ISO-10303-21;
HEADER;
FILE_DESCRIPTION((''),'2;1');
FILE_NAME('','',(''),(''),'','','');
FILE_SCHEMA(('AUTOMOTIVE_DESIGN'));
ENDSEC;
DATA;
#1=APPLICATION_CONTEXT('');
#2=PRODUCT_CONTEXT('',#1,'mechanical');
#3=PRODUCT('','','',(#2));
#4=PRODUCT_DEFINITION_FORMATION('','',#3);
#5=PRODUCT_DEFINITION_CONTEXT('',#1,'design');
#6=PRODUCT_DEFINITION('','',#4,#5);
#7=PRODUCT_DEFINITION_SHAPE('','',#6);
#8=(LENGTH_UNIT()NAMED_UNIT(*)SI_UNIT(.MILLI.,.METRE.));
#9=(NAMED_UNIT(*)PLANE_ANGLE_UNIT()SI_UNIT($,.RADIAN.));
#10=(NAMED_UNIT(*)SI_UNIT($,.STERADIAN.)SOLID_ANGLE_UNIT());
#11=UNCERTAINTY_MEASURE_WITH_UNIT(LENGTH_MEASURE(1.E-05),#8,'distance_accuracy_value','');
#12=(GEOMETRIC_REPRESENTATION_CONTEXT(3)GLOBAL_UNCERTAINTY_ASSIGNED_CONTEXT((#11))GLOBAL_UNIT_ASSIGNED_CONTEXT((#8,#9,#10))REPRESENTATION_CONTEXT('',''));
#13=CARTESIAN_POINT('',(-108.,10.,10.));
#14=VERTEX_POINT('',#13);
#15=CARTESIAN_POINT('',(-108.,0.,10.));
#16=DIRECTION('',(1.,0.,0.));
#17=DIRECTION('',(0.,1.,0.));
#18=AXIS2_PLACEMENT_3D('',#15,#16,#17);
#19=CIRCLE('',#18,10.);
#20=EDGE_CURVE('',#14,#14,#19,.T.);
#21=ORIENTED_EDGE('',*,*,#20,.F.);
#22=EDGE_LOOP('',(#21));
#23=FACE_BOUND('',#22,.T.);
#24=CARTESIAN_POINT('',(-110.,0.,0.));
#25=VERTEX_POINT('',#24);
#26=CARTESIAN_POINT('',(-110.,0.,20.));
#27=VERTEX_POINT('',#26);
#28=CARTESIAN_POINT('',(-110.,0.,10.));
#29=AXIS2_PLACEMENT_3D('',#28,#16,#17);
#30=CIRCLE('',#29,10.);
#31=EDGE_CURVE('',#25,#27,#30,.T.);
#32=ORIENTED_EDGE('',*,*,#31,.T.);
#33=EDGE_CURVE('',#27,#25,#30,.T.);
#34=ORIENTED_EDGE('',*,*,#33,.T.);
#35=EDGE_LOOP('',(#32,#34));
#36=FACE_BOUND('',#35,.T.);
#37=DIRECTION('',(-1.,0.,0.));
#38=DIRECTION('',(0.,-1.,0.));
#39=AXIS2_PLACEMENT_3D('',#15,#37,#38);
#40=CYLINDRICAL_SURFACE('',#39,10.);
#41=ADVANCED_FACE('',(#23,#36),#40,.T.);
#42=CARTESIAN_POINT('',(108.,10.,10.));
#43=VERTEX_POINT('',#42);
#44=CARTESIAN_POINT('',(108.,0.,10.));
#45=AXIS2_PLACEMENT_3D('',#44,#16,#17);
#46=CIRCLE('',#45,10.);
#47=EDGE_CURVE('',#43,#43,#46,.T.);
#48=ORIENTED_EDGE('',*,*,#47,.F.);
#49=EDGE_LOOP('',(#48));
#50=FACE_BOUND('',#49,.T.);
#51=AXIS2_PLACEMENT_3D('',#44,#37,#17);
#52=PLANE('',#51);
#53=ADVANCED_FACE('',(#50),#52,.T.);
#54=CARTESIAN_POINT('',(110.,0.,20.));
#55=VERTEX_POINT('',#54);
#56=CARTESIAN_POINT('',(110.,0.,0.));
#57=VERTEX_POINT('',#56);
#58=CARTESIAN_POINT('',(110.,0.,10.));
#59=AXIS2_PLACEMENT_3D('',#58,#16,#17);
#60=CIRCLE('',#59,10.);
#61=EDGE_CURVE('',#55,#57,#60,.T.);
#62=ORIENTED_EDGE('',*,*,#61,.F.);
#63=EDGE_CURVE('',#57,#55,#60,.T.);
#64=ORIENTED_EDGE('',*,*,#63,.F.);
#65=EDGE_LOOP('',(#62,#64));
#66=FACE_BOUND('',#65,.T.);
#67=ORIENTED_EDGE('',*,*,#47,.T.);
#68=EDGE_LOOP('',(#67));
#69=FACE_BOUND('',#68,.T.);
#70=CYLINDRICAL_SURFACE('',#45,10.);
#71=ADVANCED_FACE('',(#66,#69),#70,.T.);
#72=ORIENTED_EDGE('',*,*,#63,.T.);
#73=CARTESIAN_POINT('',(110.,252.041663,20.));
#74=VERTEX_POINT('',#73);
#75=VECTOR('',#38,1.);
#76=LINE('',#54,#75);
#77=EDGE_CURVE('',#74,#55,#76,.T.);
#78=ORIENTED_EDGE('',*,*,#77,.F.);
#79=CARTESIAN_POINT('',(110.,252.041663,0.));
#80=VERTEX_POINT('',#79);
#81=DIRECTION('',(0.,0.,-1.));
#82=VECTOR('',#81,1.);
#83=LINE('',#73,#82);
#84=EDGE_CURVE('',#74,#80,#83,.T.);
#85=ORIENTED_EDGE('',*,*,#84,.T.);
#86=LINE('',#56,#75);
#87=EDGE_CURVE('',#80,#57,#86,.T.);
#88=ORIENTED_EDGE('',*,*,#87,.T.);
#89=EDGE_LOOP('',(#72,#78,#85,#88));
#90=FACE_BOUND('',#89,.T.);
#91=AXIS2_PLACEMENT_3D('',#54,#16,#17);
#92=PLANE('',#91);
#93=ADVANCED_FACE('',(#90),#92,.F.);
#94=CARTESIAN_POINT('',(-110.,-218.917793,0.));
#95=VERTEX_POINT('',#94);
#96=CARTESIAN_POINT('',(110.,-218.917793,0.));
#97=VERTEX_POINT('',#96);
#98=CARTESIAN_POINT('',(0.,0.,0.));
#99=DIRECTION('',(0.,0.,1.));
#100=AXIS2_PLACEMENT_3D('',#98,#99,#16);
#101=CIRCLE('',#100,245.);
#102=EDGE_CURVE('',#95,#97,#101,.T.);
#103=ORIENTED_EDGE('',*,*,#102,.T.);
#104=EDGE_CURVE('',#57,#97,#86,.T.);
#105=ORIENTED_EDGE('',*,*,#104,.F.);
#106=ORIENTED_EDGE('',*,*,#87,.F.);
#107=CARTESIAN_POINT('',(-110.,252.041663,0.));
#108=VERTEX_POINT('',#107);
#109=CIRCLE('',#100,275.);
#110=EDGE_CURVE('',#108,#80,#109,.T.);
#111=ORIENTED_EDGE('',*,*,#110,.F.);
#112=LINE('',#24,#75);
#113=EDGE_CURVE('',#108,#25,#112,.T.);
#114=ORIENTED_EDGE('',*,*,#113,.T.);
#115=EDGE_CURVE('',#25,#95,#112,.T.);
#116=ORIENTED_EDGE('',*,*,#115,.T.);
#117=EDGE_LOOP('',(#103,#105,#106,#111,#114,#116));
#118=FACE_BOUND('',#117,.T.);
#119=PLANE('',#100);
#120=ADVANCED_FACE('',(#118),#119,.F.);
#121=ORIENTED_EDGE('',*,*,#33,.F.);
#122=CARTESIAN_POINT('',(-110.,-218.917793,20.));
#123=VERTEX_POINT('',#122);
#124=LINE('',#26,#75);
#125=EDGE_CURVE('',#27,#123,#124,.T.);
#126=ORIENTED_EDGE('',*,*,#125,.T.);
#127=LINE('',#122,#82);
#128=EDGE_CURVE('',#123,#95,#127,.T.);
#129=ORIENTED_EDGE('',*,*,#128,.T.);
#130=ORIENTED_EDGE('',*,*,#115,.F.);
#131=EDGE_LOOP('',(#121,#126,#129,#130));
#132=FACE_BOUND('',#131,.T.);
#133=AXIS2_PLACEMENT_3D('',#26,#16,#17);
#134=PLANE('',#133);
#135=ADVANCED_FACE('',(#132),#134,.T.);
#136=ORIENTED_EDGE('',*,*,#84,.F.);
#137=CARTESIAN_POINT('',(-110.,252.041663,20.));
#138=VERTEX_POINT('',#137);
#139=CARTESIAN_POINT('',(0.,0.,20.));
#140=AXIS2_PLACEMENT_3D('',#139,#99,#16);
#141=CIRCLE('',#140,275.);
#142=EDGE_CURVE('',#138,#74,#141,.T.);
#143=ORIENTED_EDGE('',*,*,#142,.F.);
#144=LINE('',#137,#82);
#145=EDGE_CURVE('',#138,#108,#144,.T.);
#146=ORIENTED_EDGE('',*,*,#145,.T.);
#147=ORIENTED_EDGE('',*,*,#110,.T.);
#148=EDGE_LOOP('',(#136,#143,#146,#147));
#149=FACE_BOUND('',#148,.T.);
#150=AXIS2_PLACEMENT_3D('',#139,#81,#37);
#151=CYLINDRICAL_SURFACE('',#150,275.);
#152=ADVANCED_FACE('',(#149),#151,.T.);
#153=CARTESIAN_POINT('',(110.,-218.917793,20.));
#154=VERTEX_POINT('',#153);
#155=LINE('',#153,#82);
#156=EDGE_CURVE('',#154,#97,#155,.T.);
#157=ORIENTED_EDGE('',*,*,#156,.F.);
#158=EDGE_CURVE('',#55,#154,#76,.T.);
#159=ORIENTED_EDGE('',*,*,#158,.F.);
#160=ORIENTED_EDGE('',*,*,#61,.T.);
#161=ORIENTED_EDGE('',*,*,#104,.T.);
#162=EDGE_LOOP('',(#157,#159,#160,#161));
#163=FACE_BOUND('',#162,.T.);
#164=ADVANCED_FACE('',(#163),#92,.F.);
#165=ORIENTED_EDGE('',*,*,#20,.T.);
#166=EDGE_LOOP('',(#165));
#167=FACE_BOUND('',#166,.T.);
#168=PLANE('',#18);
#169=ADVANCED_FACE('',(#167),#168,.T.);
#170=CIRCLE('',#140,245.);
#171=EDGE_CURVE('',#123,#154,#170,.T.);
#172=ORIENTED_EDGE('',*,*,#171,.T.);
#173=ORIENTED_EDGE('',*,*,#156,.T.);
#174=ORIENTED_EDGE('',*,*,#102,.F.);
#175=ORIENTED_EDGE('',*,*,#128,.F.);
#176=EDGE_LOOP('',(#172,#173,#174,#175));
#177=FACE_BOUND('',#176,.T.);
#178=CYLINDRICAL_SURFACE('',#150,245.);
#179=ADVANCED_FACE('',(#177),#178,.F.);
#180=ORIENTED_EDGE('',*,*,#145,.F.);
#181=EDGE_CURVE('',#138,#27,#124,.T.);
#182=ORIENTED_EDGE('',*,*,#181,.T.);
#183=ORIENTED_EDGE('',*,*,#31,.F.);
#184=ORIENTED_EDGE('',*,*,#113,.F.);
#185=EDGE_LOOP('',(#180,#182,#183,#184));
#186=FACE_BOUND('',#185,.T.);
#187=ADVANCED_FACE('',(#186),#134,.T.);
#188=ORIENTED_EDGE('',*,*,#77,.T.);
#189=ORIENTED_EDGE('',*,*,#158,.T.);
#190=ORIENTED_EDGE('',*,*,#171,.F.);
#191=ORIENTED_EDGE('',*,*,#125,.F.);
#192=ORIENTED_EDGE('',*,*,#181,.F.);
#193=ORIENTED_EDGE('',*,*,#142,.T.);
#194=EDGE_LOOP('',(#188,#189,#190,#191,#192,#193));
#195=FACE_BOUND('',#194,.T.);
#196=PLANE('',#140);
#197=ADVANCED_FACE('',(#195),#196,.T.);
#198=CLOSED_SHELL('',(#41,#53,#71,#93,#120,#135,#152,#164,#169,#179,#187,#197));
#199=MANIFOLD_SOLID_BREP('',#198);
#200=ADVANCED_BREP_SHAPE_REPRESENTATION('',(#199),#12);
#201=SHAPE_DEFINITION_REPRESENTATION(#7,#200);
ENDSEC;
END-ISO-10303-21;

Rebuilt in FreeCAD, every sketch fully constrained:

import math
import FreeCAD as App
import Part
import Sketcher
from FreeCAD import Vector

doc = App.newDocument("Part")
params = doc.addObject("Spreadsheet::Sheet", "Params")
for row, (alias, value) in enumerate([
    ("sketch1_radius", "275 mm"),
    ("sketch1_radius2", "245 mm"),
    ("pad1_length", "20 mm"),
    ("sketch2_diameter", "20 mm"),
    ("pad2_length", "2 mm"),
], start=1):
    params.set(f"A{row}", alias)
    params.set(f"B{row}", "=" + value)
    params.setAlias(f"B{row}", alias)

body = doc.addObject("PartDesign::Body", "Body")

# Sketch on XY plane
sketch1 = body.newObject("Sketcher::SketchObject", "Sketch")
sketch1.AttachmentSupport = (doc.getObject("XY_Plane"), [""])
sketch1.MapMode = "FlatFace"
sketch1.addGeometry([
    Part.ArcOfCircle(Part.Circle(Vector(0, 0, 0), Vector(0, 0, 1), 275), math.radians(114), math.radians(426)),
    Part.LineSegment(Vector(110, 252, 0), Vector(110, -219, 0)),
    Part.ArcOfCircle(Part.Circle(Vector(0, 0, 0), Vector(0, 0, 1), 245), math.radians(-117), math.radians(-63)),
    Part.LineSegment(Vector(-110, -219, 0), Vector(-110, 252, 0)),
], False)
sketch1.addConstraint([
    Sketcher.Constraint("Coincident", 0, 2, 1, 1),
    Sketcher.Constraint("Coincident", 1, 2, 2, 2),
    Sketcher.Constraint("Coincident", 2, 1, 3, 1),
    Sketcher.Constraint("Coincident", 3, 2, 0, 1),
    Sketcher.Constraint("Vertical", 1),
    Sketcher.Constraint("Vertical", 3),
    Sketcher.Constraint("Coincident", 0, 3, -1, 1),
    Sketcher.Constraint("Coincident", 2, 3, -1, 1),
    Sketcher.Constraint("Horizontal", 1, 2, 2, 1),
    Sketcher.Constraint("Radius", 0, 275.0),
    Sketcher.Constraint("Radius", 2, 245.0),
    Sketcher.Constraint("DistanceX", -1, 1, 1, 2, 110.0),
])
sketch1.setExpression("Constraints[9]", "Params.sketch1_radius")
sketch1.setExpression("Constraints[10]", "Params.sketch1_radius2")
pad1 = body.newObject("PartDesign::Pad", "Pad")
pad1.Profile = sketch1
pad1.setExpression("Length", "Params.pad1_length")

# Sketch on YZ plane
sketch2 = body.newObject("Sketcher::SketchObject", "Sketch001")
sketch2.AttachmentSupport = (doc.getObject("YZ_Plane"), [""])
sketch2.MapMode = "FlatFace"
sketch2.AttachmentOffset = App.Placement(Vector(0, 0, -110), App.Rotation())
sketch2.addGeometry(Part.Circle(Vector(0, 10, 0), Vector(0, 0, 1), 10), False)
sketch2.addConstraint([
    Sketcher.Constraint("PointOnObject", 0, 3, -2),
    Sketcher.Constraint("Diameter", 0, 20.0),
    Sketcher.Constraint("DistanceY", -1, 1, 0, 3, 10.0),
])
sketch2.setExpression("Constraints[1]", "Params.sketch2_diameter")
pad2 = body.newObject("PartDesign::Pad", "Pad001")
pad2.Profile = sketch2
pad2.setExpression("Length", "Params.pad2_length")
doc.recompute()

mirrored = body.newObject("PartDesign::Mirrored", "Mirrored")
mirrored.Originals = [pad2]
mirrored.MirrorPlane = (doc.getObject("YZ_Plane"), [""])
body.Tip = mirrored

doc.recompute()
